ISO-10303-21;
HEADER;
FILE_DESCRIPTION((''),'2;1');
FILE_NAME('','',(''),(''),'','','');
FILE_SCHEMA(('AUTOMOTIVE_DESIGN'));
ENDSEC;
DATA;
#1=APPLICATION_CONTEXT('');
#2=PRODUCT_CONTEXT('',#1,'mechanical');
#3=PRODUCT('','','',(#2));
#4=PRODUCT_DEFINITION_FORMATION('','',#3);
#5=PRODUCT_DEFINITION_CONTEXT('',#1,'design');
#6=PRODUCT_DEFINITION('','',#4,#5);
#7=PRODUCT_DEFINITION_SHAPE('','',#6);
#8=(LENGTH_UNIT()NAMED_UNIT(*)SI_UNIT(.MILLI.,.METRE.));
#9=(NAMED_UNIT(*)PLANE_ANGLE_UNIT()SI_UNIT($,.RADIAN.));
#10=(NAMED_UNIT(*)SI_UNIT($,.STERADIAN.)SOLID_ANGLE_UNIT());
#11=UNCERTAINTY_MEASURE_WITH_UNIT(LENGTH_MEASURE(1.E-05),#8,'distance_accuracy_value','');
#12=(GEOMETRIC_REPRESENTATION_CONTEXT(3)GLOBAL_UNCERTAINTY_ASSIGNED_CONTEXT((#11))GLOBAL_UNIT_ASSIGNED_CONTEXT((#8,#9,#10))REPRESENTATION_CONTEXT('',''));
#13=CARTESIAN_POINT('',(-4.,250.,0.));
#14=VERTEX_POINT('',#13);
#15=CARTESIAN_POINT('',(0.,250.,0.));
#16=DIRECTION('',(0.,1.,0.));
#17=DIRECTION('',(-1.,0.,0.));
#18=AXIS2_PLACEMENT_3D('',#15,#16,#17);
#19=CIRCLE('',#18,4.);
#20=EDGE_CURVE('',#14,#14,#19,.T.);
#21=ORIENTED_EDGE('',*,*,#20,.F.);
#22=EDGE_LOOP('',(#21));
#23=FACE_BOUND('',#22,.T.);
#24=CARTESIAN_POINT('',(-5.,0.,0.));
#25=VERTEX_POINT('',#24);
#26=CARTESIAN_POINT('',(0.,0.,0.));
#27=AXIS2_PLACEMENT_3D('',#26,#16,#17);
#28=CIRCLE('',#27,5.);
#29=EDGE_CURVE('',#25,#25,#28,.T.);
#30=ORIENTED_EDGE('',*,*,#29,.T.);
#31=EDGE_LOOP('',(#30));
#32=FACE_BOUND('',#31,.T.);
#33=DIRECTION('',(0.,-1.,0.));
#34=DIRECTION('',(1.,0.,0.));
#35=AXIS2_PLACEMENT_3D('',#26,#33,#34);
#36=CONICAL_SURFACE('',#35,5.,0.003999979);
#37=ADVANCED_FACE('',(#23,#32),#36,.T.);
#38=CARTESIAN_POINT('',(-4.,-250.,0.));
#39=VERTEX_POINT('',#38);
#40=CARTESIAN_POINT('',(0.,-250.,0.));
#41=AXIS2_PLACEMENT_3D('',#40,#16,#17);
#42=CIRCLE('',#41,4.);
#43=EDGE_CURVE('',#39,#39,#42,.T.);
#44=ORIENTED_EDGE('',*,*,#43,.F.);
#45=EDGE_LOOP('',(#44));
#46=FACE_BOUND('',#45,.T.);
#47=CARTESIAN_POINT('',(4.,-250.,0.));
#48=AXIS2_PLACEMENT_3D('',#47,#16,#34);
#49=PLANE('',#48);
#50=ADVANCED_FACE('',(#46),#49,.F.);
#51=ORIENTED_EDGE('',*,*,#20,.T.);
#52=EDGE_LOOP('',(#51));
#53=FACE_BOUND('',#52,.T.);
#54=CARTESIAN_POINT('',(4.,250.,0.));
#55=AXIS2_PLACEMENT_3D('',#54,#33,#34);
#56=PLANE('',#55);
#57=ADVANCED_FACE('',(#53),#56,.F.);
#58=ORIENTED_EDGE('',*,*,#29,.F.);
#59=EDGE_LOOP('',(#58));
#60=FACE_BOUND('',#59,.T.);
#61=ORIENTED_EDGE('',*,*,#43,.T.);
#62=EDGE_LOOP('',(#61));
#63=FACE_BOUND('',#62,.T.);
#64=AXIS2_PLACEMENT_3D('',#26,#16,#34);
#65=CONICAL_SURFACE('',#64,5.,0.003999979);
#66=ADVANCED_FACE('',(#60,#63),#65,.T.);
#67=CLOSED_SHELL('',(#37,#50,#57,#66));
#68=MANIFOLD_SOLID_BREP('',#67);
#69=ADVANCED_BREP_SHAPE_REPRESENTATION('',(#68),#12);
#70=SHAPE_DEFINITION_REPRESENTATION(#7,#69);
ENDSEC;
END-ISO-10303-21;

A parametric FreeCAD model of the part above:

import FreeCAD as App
import Part
import Sketcher

doc = App.newDocument("Part")
body = doc.addObject("PartDesign::Body", "Body")

sketch1 = body.newObject("Sketcher::SketchObject", "Sketch")
sketch1.AttachmentSupport = (doc.getObject("XY_Plane"), [""])
sketch1.MapMode = "FlatFace"
sketch1.addGeometry(Part.LineSegment(App.Vector(0, 0, 0), App.Vector(5, 0, 0)), False)
sketch1.addGeometry(Part.LineSegment(App.Vector(5, 0, 0), App.Vector(4, 250, 0)), False)
sketch1.addGeometry(Part.LineSegment(App.Vector(4, 250, 0), App.Vector(0, 250, 0)), False)
sketch1.addGeometry(Part.LineSegment(App.Vector(0, 250, 0), App.Vector(0, 0, 0)), False)
sketch1.addConstraint(Sketcher.Constraint("Coincident", 0, 2, 1, 1))
sketch1.addConstraint(Sketcher.Constraint("Coincident", 1, 2, 2, 1))
sketch1.addConstraint(Sketcher.Constraint("Coincident", 2, 2, 3, 1))
sketch1.addConstraint(Sketcher.Constraint("Coincident", 3, 2, 0, 1))
sketch1.addConstraint(Sketcher.Constraint("Horizontal", 0))
sketch1.addConstraint(Sketcher.Constraint("Horizontal", 2))
sketch1.addConstraint(Sketcher.Constraint("Vertical", 3))
sketch1.addConstraint(Sketcher.Constraint("Coincident", 3, 2, -1, 1))
sketch1.addConstraint(Sketcher.Constraint("DistanceX", 0, 1, 0, 2, 5.0))
sketch1.addConstraint(Sketcher.Constraint("DistanceX", 2, 2, 2, 1, 4.0))
sketch1.addConstraint(Sketcher.Constraint("DistanceY", 3, 2, 3, 1, 250.0))
revolution = body.newObject("PartDesign::Revolution", "Revolution")
revolution.Profile = sketch1
revolution.ReferenceAxis = (sketch1, ["V_Axis"])
revolution.Angle = 360
doc.recompute()

mirrored = body.newObject("PartDesign::Mirrored", "Mirrored")
mirrored.Originals = [revolution]
mirrored.MirrorPlane = (doc.getObject("XZ_Plane"), [""])
body.Tip = mirrored

doc.recompute()
